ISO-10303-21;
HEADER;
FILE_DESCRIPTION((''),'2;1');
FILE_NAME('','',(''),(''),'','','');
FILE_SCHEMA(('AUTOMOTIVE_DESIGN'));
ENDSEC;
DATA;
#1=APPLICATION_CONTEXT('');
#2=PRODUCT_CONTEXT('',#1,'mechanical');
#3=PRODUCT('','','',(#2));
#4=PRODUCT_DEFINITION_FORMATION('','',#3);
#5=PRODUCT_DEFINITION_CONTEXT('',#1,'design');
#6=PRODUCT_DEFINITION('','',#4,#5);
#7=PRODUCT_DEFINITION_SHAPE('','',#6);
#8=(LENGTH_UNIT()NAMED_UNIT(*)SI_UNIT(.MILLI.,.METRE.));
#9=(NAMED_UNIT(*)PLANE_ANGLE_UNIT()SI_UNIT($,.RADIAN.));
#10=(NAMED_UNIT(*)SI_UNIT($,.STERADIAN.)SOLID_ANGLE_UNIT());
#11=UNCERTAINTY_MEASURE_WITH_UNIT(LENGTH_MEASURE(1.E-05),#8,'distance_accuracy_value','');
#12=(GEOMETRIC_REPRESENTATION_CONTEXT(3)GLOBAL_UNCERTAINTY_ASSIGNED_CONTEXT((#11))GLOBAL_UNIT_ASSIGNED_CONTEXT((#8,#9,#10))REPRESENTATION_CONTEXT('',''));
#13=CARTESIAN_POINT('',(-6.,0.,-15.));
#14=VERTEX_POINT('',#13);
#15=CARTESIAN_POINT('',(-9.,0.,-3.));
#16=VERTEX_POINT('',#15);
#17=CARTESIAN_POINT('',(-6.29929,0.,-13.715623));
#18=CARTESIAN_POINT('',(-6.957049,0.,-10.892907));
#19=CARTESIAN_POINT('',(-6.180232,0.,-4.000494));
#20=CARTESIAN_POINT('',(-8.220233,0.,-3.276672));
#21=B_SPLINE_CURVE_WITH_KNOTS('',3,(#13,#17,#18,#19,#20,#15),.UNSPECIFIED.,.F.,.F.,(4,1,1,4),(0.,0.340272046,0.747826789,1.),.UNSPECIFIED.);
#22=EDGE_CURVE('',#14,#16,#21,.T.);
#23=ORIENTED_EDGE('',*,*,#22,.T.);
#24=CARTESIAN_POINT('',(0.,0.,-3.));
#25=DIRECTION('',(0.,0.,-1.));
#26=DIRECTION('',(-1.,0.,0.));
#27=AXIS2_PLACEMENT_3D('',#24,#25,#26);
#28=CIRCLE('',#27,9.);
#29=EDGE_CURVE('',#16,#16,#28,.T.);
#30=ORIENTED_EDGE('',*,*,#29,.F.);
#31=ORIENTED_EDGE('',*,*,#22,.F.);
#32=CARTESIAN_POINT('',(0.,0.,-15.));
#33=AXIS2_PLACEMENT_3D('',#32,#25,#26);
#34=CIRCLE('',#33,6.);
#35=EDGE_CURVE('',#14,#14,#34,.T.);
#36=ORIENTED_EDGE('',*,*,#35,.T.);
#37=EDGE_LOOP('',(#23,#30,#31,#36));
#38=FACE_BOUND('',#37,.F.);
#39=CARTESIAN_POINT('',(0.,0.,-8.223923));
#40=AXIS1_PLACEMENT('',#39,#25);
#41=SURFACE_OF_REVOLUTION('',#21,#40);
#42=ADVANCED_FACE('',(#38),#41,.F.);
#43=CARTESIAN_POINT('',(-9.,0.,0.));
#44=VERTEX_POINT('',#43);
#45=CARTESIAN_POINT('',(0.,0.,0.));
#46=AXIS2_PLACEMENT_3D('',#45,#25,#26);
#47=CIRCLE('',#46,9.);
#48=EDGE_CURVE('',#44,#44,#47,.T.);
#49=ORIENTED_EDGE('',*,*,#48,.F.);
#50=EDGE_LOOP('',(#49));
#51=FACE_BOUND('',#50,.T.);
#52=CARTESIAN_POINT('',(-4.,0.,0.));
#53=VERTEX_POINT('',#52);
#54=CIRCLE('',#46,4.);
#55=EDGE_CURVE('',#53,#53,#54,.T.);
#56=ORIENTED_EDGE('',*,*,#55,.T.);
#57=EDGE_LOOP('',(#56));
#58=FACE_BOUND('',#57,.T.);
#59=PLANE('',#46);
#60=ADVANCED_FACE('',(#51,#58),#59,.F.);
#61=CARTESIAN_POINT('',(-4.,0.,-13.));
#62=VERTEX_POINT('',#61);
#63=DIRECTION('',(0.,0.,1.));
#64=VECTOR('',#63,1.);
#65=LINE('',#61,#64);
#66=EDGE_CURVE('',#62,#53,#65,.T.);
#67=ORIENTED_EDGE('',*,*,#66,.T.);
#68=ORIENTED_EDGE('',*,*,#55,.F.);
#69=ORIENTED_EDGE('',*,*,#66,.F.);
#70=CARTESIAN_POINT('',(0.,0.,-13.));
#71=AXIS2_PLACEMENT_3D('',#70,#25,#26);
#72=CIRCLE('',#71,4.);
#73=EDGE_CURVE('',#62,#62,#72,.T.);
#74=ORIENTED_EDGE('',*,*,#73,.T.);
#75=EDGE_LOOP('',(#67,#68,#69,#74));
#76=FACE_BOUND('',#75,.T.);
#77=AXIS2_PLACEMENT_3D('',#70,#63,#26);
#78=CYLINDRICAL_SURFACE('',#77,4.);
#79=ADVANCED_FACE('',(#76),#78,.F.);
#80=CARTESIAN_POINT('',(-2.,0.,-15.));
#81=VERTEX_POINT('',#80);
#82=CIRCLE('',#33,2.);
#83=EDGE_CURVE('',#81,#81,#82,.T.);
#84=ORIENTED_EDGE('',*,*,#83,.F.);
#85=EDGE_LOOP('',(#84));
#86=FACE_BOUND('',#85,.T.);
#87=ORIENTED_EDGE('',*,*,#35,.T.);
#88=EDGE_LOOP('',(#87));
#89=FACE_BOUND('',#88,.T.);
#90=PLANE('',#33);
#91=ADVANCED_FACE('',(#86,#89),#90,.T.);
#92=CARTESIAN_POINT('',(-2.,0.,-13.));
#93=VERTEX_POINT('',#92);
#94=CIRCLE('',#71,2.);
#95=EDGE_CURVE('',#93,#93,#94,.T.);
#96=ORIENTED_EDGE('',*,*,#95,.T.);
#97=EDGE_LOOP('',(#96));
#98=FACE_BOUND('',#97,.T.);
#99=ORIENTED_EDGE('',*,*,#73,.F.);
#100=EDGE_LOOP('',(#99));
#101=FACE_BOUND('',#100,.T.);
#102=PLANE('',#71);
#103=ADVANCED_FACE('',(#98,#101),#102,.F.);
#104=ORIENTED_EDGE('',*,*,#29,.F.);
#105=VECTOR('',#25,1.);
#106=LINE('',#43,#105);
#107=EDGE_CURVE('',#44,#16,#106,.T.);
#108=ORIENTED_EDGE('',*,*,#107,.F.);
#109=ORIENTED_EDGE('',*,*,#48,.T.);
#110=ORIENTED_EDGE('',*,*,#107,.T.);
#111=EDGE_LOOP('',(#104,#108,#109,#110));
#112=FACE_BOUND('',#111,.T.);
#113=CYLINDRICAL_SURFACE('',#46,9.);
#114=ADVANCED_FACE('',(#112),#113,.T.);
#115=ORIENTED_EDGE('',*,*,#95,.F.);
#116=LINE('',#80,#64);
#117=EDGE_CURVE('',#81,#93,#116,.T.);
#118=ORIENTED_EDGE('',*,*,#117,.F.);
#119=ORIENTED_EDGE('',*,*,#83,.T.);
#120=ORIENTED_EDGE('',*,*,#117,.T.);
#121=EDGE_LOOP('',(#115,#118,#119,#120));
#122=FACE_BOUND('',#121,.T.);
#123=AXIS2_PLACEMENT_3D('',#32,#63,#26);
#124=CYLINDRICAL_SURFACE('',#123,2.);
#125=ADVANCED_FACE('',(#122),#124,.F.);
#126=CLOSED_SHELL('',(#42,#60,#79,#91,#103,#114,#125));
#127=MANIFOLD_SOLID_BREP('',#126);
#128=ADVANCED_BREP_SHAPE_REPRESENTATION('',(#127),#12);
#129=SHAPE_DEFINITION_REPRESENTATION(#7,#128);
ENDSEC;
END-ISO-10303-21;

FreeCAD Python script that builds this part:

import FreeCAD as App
import Part
import Sketcher

doc = App.newDocument("Part")
body = doc.addObject("PartDesign::Body", "Body")

sketch1 = body.newObject("Sketcher::SketchObject", "Sketch")
sketch1.AttachmentSupport = (doc.getObject("XZ_Plane"), [""])
sketch1.MapMode = "FlatFace"
sketch1.addGeometry([
    Part.LineSegment(App.Vector(-4, 0, 0), App.Vector(-9, 0, 0)),
    Part.LineSegment(App.Vector(-9, 0, 0), App.Vector(-9, -3, 0)),
    Part.BSplineCurve([App.Vector(-6, -15, 0), App.Vector(-6.29929, -13.715623, 0), App.Vector(-6.957049, -10.892907, 0), App.Vector(-6.180232, -4.000494, 0), App.Vector(-8.220233, -3.276672, 0), App.Vector(-9, -3, 0)], [4, 1, 1, 4], [0, 0.340272046, 0.747826789, 1], False, 3, [1, 1, 1, 1, 1, 1], False),
    Part.LineSegment(App.Vector(-6, -15, 0), App.Vector(-2, -15, 0)),
    Part.LineSegment(App.Vector(-2, -15, 0), App.Vector(-2, -13, 0)),
    Part.LineSegment(App.Vector(-2, -13, 0), App.Vector(-4, -13, 0)),
    Part.LineSegment(App.Vector(-4, -13, 0), App.Vector(-4, 0, 0)),
], False)
sketch1.addConstraint([
    Sketcher.Constraint("Block", 2),
    Sketcher.Constraint("Coincident", 0, 2, 1, 1),
    Sketcher.Constraint("Coincident", 1, 2, 2, 2),
    Sketcher.Constraint("Coincident", 2, 1, 3, 1),
    Sketcher.Constraint("Coincident", 3, 2, 4, 1),
    Sketcher.Constraint("Coincident", 4, 2, 5, 1),
    Sketcher.Constraint("Coincident", 5, 2, 6, 1),
    Sketcher.Constraint("Coincident", 6, 2, 0, 1),
    Sketcher.Constraint("Horizontal", 0),
    Sketcher.Constraint("Vertical", 1),
    Sketcher.Constraint("Horizontal", 3),
    Sketcher.Constraint("Vertical", 4),
    Sketcher.Constraint("Horizontal", 5),
    Sketcher.Constraint("Vertical", 6),
    Sketcher.Constraint("PointOnObject", 0, 2, -1),
    Sketcher.Constraint("DistanceX", 0, 2, 0, 1, 5.0),
    Sketcher.Constraint("DistanceX", 3, 1, 3, 2, 4.0),
    Sketcher.Constraint("DistanceY", 4, 1, 4, 2, 2.0),
])
revolution = body.newObject("PartDesign::Revolution", "Revolution")
revolution.Profile = sketch1
revolution.ReferenceAxis = (sketch1, ["V_Axis"])
revolution.Angle = 360

doc.recompute()
